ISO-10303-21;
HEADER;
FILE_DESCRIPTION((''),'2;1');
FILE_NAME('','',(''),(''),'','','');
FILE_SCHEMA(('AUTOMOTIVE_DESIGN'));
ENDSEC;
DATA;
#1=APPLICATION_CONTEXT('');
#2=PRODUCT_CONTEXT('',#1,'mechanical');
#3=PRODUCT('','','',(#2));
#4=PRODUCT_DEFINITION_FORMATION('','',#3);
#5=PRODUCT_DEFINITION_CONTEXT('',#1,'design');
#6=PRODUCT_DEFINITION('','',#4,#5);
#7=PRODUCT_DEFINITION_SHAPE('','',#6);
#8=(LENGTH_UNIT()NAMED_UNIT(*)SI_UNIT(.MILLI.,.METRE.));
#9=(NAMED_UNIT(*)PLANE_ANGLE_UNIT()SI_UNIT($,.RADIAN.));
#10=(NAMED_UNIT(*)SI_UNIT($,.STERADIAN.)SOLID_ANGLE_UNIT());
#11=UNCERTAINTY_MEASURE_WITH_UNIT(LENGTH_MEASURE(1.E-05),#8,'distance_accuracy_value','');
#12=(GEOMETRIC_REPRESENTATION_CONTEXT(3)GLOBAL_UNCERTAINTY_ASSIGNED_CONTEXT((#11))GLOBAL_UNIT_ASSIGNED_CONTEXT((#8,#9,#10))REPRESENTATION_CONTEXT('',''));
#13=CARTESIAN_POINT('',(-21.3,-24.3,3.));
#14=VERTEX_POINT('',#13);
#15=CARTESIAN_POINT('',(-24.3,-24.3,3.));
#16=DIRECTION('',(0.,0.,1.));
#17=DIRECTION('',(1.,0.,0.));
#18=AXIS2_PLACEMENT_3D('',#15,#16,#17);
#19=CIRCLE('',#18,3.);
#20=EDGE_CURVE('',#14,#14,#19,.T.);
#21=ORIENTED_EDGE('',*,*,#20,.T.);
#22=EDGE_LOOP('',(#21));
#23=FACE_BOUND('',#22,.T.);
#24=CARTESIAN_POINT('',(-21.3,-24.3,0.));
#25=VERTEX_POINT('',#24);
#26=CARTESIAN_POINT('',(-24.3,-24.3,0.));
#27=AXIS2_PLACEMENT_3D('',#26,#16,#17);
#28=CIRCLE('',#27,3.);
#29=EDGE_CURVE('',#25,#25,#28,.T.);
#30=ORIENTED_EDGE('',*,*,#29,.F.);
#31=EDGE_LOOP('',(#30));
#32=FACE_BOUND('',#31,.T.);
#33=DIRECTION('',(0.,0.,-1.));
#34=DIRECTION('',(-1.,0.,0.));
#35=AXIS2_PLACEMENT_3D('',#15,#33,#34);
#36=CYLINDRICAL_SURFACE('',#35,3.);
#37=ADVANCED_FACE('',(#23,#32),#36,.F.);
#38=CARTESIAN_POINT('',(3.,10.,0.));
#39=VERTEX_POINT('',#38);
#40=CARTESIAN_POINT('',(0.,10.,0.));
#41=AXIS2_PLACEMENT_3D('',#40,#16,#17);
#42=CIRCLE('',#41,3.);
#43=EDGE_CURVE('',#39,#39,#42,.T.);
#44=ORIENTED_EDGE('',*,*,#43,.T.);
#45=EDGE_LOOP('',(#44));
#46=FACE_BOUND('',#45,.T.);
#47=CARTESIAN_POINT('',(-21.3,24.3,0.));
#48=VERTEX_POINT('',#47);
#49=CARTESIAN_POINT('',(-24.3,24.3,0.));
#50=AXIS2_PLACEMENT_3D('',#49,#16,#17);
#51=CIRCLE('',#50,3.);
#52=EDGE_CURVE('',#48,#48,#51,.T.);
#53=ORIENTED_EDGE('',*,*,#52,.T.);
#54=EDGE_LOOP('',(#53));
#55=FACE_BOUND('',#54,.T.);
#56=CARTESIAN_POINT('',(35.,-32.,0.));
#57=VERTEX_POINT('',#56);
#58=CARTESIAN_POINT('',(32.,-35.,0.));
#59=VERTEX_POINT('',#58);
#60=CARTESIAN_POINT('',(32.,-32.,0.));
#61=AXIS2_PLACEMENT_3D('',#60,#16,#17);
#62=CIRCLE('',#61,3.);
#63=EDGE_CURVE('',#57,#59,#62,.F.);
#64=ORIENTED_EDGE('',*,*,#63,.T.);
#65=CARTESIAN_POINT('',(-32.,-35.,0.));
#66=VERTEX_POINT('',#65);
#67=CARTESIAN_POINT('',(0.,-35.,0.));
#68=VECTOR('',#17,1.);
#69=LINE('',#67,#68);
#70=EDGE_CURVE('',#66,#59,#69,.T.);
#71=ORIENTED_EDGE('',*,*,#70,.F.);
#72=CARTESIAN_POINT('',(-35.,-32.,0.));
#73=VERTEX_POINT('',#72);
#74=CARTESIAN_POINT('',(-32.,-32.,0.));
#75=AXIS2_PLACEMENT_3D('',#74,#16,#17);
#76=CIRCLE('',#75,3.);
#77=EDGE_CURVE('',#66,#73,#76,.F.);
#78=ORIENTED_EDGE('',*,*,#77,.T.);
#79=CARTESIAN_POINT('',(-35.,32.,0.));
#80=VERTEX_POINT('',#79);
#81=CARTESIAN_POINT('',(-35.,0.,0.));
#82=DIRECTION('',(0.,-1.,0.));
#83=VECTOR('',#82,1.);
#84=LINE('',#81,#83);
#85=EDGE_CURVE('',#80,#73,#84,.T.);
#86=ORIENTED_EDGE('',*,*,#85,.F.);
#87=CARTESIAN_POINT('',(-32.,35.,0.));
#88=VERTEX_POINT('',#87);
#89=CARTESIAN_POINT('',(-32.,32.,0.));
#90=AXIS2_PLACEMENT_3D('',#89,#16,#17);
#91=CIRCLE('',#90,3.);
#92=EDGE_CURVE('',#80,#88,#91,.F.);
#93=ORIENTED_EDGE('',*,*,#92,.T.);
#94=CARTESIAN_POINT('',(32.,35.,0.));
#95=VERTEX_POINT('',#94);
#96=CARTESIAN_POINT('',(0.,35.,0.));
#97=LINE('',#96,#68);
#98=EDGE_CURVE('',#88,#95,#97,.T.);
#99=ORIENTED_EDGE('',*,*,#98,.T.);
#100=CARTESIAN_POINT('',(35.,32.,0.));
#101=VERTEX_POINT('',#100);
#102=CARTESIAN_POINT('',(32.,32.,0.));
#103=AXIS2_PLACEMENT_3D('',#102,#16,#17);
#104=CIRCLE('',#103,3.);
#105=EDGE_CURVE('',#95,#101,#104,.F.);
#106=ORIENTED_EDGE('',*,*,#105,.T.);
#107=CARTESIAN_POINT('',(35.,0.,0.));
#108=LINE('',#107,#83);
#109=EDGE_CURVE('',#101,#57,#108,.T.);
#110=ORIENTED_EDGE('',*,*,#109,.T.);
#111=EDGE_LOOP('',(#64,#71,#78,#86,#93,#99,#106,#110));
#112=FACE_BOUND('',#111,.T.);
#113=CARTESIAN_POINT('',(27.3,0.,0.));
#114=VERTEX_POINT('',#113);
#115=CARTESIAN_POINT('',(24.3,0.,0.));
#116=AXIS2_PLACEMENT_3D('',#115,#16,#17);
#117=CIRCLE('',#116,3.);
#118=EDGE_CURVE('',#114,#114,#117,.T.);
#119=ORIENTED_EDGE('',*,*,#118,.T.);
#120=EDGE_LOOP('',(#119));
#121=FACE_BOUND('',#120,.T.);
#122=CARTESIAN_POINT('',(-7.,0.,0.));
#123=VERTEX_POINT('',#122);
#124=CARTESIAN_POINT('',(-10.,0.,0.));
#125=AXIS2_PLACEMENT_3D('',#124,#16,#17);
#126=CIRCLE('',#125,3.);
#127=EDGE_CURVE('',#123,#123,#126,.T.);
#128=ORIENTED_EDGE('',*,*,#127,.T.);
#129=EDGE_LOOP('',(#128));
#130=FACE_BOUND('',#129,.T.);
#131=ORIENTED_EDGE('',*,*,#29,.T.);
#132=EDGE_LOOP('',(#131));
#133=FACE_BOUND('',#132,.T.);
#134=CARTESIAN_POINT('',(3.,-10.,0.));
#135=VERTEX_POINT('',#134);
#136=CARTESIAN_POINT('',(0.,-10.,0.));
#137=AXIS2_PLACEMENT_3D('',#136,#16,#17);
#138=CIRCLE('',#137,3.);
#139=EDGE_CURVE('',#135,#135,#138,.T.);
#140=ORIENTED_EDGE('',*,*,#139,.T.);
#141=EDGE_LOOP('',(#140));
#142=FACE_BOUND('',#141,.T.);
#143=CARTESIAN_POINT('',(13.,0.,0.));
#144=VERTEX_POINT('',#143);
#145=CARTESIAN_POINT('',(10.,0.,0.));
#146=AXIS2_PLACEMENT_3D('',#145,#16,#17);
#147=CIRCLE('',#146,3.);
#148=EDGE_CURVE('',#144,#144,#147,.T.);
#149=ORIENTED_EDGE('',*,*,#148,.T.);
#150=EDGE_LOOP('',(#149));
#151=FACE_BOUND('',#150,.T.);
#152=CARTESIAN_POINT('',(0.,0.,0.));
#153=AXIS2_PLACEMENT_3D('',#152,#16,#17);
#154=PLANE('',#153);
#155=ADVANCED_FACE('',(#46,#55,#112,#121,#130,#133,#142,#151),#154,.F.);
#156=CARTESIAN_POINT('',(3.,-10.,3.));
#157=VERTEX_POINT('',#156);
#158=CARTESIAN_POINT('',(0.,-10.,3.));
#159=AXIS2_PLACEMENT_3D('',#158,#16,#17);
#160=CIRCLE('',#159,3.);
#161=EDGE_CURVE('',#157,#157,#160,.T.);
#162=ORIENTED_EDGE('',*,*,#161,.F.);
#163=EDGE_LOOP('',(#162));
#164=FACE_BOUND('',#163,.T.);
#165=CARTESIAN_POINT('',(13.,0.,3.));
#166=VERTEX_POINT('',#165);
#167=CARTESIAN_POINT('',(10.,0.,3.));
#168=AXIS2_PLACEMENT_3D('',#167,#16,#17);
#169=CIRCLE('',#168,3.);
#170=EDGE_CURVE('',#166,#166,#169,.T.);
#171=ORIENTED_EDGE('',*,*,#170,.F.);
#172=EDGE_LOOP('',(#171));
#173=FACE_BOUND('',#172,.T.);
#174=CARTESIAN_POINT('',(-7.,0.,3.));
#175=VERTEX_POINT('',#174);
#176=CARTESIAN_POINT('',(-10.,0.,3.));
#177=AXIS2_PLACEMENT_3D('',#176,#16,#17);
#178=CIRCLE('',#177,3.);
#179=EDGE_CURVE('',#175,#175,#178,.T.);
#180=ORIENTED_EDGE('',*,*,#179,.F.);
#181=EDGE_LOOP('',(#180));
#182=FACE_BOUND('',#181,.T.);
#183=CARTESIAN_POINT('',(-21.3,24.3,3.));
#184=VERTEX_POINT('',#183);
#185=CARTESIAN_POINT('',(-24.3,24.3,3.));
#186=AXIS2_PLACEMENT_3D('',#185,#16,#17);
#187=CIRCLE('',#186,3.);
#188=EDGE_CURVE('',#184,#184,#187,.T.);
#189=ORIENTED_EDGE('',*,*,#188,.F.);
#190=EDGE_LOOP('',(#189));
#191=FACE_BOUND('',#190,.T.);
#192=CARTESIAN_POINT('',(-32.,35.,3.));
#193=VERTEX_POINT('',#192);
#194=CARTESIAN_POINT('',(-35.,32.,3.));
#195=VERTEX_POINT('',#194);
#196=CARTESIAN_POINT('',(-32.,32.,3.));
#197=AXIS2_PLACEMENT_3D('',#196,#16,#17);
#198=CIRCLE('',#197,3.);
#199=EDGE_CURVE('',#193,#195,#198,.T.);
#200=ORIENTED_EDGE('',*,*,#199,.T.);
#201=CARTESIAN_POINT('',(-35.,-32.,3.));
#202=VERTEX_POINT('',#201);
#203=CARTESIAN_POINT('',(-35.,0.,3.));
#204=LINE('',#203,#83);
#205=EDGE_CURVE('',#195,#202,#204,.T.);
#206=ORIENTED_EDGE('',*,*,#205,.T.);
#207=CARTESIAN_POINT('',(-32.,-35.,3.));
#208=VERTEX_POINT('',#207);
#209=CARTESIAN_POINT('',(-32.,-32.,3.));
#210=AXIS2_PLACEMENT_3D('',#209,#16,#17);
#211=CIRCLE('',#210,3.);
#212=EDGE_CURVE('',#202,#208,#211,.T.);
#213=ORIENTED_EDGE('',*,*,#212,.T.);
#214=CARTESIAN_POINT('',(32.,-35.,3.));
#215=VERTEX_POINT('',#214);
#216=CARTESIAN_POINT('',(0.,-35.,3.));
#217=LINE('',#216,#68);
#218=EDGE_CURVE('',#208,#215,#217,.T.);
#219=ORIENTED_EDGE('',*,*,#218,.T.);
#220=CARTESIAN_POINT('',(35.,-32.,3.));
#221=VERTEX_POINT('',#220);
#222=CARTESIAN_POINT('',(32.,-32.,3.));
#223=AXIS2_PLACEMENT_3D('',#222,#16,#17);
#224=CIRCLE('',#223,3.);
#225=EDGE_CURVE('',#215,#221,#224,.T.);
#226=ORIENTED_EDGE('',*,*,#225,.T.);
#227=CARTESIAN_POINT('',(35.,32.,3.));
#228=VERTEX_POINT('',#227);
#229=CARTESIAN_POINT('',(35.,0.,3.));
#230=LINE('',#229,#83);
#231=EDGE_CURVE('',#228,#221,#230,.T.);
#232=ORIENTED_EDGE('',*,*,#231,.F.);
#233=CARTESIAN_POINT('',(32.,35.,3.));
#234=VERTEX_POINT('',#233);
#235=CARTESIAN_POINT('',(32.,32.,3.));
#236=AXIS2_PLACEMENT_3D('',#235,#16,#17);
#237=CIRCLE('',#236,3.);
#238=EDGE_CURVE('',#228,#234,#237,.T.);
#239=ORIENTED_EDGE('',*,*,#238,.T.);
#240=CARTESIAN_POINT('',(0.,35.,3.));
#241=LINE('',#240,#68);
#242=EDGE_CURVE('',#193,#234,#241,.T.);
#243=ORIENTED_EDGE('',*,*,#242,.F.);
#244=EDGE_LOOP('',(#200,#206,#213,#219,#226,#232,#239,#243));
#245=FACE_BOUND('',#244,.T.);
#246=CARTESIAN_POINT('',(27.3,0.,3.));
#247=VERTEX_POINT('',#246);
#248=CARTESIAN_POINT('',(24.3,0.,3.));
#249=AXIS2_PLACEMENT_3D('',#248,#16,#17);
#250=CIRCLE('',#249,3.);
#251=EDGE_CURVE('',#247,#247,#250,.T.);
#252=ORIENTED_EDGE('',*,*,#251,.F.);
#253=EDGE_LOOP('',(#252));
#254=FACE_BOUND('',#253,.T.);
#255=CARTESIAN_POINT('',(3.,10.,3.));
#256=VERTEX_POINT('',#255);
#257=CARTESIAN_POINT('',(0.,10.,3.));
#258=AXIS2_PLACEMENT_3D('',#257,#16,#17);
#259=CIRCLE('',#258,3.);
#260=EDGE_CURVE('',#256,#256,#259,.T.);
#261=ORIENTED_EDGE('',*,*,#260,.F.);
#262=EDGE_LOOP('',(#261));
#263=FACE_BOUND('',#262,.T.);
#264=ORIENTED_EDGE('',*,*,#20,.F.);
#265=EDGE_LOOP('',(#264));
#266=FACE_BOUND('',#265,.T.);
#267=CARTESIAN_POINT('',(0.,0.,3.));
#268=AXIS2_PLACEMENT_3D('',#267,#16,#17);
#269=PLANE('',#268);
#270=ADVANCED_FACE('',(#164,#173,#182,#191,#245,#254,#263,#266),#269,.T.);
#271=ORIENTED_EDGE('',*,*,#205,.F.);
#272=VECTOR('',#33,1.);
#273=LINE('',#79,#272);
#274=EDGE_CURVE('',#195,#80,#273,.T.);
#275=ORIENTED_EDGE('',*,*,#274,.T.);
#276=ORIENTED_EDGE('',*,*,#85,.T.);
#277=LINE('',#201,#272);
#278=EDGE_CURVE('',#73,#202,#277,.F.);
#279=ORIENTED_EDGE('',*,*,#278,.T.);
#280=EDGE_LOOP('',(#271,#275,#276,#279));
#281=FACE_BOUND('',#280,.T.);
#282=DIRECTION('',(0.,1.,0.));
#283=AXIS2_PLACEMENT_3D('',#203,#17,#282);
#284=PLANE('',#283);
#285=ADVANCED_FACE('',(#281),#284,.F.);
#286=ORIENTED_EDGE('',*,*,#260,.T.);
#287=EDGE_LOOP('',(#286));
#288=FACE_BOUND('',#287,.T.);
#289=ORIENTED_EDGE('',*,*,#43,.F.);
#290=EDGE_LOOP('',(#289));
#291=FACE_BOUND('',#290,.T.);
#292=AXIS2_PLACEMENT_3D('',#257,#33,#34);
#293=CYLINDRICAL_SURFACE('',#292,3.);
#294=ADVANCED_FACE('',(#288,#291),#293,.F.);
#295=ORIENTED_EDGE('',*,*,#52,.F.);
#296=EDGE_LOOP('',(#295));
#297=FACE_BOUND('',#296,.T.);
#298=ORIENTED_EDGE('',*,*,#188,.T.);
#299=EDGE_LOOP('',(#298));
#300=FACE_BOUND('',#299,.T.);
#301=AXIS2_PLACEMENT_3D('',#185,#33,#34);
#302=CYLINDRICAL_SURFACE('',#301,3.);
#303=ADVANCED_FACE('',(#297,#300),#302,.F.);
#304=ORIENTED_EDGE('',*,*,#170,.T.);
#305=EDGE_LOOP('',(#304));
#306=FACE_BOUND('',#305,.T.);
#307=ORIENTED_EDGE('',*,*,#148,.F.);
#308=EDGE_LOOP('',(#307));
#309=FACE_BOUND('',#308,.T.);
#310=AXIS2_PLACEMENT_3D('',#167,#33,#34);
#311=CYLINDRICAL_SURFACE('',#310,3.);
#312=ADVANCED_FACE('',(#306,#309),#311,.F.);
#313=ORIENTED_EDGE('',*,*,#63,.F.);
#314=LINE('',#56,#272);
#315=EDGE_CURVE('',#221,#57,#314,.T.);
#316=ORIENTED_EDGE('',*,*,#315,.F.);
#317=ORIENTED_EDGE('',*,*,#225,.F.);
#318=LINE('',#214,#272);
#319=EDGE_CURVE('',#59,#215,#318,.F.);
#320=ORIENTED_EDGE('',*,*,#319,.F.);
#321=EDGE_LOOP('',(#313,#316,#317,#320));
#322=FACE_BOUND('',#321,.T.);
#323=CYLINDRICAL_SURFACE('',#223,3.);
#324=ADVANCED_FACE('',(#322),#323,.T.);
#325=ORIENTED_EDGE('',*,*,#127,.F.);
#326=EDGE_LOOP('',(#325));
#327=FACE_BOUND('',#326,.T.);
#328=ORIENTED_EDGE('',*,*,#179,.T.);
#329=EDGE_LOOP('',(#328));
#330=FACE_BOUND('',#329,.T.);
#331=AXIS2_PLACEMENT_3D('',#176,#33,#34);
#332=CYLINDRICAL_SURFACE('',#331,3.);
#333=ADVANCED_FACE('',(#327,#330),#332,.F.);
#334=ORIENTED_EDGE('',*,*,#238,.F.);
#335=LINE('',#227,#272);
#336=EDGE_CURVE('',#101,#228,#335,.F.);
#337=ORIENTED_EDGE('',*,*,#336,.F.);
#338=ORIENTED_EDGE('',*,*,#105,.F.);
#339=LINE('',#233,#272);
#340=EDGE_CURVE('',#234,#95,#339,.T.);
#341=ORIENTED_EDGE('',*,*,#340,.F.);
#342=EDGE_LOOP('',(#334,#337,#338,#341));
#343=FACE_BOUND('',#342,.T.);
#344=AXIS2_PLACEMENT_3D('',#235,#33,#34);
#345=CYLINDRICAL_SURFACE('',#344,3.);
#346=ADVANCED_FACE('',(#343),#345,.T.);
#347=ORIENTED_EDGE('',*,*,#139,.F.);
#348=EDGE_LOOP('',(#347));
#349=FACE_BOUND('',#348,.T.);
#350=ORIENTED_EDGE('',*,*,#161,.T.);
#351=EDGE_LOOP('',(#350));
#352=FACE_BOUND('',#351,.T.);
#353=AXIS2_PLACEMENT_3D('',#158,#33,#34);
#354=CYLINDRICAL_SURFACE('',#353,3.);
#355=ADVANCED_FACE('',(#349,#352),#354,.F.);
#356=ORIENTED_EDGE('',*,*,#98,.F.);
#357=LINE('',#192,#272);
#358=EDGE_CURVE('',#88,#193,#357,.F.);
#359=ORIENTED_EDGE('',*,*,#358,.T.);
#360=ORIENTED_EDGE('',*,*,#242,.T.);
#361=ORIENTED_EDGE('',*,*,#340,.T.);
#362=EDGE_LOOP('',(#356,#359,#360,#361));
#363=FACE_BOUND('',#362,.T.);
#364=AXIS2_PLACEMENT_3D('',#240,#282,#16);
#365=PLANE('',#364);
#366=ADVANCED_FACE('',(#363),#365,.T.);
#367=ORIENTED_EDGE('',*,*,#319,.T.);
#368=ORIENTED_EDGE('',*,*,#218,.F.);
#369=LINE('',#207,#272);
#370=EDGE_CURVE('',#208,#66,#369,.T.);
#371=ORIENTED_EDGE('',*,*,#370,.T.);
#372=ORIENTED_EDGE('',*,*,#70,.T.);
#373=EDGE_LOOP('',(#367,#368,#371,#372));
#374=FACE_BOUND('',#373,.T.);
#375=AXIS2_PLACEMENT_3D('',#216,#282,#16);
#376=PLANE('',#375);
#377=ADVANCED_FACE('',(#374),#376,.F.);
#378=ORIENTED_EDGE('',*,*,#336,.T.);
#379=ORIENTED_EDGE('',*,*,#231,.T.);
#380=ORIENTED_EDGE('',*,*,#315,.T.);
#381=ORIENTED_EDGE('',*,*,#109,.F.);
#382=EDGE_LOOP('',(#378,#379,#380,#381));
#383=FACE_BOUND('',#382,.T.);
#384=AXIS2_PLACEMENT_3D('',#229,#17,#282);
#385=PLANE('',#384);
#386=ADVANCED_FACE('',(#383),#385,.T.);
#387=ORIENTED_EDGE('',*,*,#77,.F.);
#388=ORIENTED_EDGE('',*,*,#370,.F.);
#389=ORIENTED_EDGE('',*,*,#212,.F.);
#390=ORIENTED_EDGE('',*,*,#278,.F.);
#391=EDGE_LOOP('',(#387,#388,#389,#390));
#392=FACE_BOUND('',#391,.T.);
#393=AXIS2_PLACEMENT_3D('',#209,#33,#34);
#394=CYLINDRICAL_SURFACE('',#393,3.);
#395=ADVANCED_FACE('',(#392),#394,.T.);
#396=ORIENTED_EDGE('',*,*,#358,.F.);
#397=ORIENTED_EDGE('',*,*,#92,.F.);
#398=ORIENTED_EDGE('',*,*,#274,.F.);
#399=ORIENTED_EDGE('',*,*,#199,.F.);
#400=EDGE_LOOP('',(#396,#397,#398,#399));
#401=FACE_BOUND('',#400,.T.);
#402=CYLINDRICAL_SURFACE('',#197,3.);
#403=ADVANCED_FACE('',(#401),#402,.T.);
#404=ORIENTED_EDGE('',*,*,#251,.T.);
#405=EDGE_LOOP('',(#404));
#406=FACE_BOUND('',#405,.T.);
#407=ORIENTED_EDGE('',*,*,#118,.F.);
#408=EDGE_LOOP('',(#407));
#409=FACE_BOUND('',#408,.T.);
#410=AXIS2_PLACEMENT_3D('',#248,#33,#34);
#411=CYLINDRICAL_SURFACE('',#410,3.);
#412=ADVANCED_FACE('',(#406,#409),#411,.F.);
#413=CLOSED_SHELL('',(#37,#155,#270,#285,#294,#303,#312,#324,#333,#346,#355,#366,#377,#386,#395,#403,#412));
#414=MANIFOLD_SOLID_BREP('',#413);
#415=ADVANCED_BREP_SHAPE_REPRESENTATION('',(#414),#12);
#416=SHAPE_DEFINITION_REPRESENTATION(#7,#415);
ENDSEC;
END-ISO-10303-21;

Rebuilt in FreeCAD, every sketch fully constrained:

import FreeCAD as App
import Part
import Sketcher
from FreeCAD import Vector


def edges_at(feature, points):
    """Names of the edges that pass closest to the given points."""
    edges = feature.Shape.Edges
    near = lambda p: min(range(len(edges)), key=lambda i: edges[i].distToShape(Part.Vertex(*p))[0])
    return sorted({f"Edge{near(p) + 1}" for p in points})


def add_polygon(sketch, points):
    """Adds a closed chain of lines whose ends are joined by coincident constraints."""
    first, n = sketch.GeometryCount, len(points)
    for a, b in zip(points, points[1:] + points[:1]):
        sketch.addGeometry(Part.LineSegment(App.Vector(*a, 0), App.Vector(*b, 0)), False)
    for i in range(n):
        sketch.addConstraint(Sketcher.Constraint("Coincident", first + i, 2, first + (i + 1) % n, 1))

doc = App.newDocument("Part")
body = doc.addObject("PartDesign::Body", "Body")

sketch1 = doc.addObject("Sketcher::SketchObject", "Sketch")
body.addObject(sketch1)
sketch1.AttachmentSupport = (doc.XY_Plane, [""])
sketch1.MapMode = "FlatFace"
add_polygon(sketch1, [(-35, 35), (-35, -35), (35, -35), (35, 35)])
sketch1.addGeometry(Part.Circle(Vector(-24.3, -24.3, 0), Vector(0, 0, 1), 3), False)
sketch1.addGeometry(Part.Circle(Vector(0, -10, 0), Vector(0, 0, 1), 3), False)
sketch1.addGeometry(Part.Circle(Vector(-10, 0, 0), Vector(0, 0, 1), 3), False)
sketch1.addGeometry(Part.Circle(Vector(-24.3, 24.3, 0), Vector(0, 0, 1), 3), False)
sketch1.addGeometry(Part.Circle(Vector(10, 0, 0), Vector(0, 0, 1), 3), False)
sketch1.addGeometry(Part.Circle(Vector(0, 10, 0), Vector(0, 0, 1), 3), False)
sketch1.addGeometry(Part.Circle(Vector(24.3, 0, 0), Vector(0, 0, 1), 3), False)
sketch1.addConstraint([
    Sketcher.Constraint("Vertical", 0),
    Sketcher.Constraint("Horizontal", 1),
    Sketcher.Constraint("Vertical", 2),
    Sketcher.Constraint("Horizontal", 3),
    Sketcher.Constraint("Equal", 4, 5),
    Sketcher.Constraint("Equal", 5, 6),
    Sketcher.Constraint("Equal", 6, 7),
    Sketcher.Constraint("Equal", 7, 8),
    Sketcher.Constraint("Equal", 8, 9),
    Sketcher.Constraint("Equal", 9, 10),
    Sketcher.Constraint("Symmetric", 6, 3, 8, 3, -1, 1),
    Sketcher.Constraint("Symmetric", 5, 3, 9, 3, -1, 1),
    Sketcher.Constraint("Symmetric", 0, 2, 2, 2, -1, 1),
    Sketcher.Constraint("Symmetric", 4, 3, 7, 3, -1),
    Sketcher.Constraint("PointOnObject", 5, 3, -2),
    Sketcher.Constraint("PointOnObject", 6, 3, -1),
    Sketcher.Constraint("PointOnObject", 10, 3, -1),
    Sketcher.Constraint("Equal", 3, 0),
    Sketcher.Constraint("Diameter", 4, 6.0),
    Sketcher.Constraint("DistanceX", 1, 1, 1, 2, 70.0),
    Sketcher.Constraint("DistanceY", 5, 3, -1, 1, 10.0),
    Sketcher.Constraint("DistanceX", 6, 3, -1, 1, 10.0),
    Sketcher.Constraint("DistanceX", 4, 3, -1, 1, 24.3),
    Sketcher.Constraint("DistanceY", 4, 3, -1, 1, 24.3),
    Sketcher.Constraint("DistanceX", -1, 1, 10, 3, 24.3),
])
pad1 = doc.addObject("PartDesign::Pad", "Pad")
body.addObject(pad1)
pad1.Profile = sketch1
pad1.Length = 3
doc.recompute()

fillet = doc.addObject("PartDesign::Fillet", "Fillet")
body.addObject(fillet)
fillet.Base = (pad1, edges_at(pad1, [
    (35, -35, 1.5),
    (-35, -35, 1.5),
    (-35, 35, 1.5),
    (35, 35, 1.5),
]))
fillet.Radius = 3

doc.recompute()
